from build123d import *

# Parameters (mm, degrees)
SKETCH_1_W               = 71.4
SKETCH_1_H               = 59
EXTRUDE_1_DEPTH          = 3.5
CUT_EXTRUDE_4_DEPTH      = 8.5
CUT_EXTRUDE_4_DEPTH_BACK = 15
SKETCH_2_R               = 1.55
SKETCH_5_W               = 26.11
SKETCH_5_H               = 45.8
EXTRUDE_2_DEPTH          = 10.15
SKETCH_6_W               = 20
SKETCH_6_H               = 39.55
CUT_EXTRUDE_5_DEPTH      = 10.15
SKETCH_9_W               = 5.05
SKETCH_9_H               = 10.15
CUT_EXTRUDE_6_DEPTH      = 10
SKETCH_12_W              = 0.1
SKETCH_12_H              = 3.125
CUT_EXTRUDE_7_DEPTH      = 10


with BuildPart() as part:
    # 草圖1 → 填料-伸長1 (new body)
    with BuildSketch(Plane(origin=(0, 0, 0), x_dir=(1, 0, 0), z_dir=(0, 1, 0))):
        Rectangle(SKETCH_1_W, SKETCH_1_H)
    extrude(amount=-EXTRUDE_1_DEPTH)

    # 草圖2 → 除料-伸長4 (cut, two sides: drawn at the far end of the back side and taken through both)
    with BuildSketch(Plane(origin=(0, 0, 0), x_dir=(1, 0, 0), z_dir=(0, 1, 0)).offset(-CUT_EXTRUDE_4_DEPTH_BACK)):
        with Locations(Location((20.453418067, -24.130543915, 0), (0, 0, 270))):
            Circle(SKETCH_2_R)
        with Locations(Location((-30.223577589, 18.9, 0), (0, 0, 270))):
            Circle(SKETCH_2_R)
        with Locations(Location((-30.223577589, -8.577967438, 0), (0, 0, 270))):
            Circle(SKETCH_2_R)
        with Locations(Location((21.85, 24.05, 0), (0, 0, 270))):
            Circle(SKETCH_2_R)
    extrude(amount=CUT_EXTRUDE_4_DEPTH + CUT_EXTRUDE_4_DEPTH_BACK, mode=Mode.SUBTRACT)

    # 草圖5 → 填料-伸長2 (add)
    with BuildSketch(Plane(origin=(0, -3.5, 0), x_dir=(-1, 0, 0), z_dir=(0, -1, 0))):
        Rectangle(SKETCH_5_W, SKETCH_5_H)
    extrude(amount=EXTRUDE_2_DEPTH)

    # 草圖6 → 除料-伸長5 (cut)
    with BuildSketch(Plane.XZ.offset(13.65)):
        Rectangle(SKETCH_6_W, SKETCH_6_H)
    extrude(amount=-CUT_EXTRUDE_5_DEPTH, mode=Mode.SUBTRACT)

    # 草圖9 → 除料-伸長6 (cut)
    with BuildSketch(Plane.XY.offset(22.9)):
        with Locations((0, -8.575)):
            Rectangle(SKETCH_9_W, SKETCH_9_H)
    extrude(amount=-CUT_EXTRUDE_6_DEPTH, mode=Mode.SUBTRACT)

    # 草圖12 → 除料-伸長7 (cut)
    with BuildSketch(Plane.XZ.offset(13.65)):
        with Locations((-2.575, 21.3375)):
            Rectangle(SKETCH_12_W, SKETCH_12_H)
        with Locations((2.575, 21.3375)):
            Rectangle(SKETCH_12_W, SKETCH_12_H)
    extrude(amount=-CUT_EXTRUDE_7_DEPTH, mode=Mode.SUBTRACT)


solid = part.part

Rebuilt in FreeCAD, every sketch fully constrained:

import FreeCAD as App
import Part
import Sketcher


def add_polygon(sketch, points):
    """Adds a closed chain of lines whose ends are joined by coincident constraints."""
    first, n = sketch.GeometryCount, len(points)
    for a, b in zip(points, points[1:] + points[:1]):
        sketch.addGeometry(Part.LineSegment(App.Vector(*a, 0), App.Vector(*b, 0)), False)
    for i in range(n):
        sketch.addConstraint(Sketcher.Constraint("Coincident", first + i, 2, first + (i + 1) % n, 1))

doc = App.newDocument("Part")
params = doc.addObject("Spreadsheet::Sheet", "Params")
for row, (alias, value) in enumerate([
    ("sketch1_height", "59 mm"),
    ("sketch1_width", "71.4 mm"),
    ("pad1_length", "3.5 mm"),
    ("sketch2_diameter", "3.1 mm"),
    ("sketch3_height", "45.8 mm"),
    ("sketch3_width", "26.11 mm"),
    ("pad2_length", "10.15 mm"),
    ("sketch4_width", "20 mm"),
    ("sketch4_height", "39.55 mm"),
    ("pocket2_length", "10.15 mm"),
    ("sketch5_width", "5.05 mm"),
    ("sketch5_height", "10.15 mm"),
    ("pocket3_length", "10 mm"),
    ("sketch6_width", "0.1 mm"),
    ("pocket4_length", "10 mm"),
], start=1):
    params.set(f"A{row}", alias)
    params.set(f"B{row}", "=" + value)
    params.setAlias(f"B{row}", alias)

body = doc.addObject("PartDesign::Body", "Body")

sketch1 = doc.addObject("Sketcher::SketchObject", "Sketch")
body.addObject(sketch1)
sketch1.AttachmentSupport = (doc.XZ_Plane, [""])
sketch1.MapMode = "FlatFace"
add_polygon(sketch1, [(-36, -30), (-36, 30), (36, 30), (36, -30)])
sketch1.addConstraint(Sketcher.Constraint("Vertical", 0))
sketch1.addConstraint(Sketcher.Constraint("Horizontal", 1))
sketch1.addConstraint(Sketcher.Constraint("Vertical", 2))
sketch1.addConstraint(Sketcher.Constraint("Horizontal", 3))
sketch1.addConstraint(Sketcher.Constraint("Symmetric", 0, 2, 2, 2, -1, 1))
sketch1.addConstraint(Sketcher.Constraint("DistanceY", 0, 1, 0, 2, 59.0))
sketch1.addConstraint(Sketcher.Constraint("DistanceX", 1, 1, 1, 2, 71.4))
sketch1.setExpression("Constraints[9]", "Params.sketch1_height")
sketch1.setExpression("Constraints[10]", "Params.sketch1_width")
pad1 = doc.addObject("PartDesign::Pad", "Pad")
body.addObject(pad1)
pad1.Profile = sketch1
pad1.setExpression("Length", "Params.pad1_length")

sketch2 = doc.addObject("Sketcher::SketchObject", "Sketch001")
body.addObject(sketch2)
sketch2.AttachmentSupport = (doc.XZ_Plane, [""])
sketch2.MapMode = "FlatFace"
sketch2.addGeometry(Part.Circle(App.Vector(20.5, 24.1, 0), App.Vector(0, 0, 1), 1.6), False)
sketch2.addGeometry(Part.Circle(App.Vector(-30.2, -18.9, 0), App.Vector(0, 0, 1), 1.6), False)
sketch2.addGeometry(Part.Circle(App.Vector(-30.2, 8.6, 0), App.Vector(0, 0, 1), 1.6), False)
sketch2.addGeometry(Part.Circle(App.Vector(21.9, -24.1, 0), App.Vector(0, 0, 1), 1.6), False)
sketch2.addConstraint(Sketcher.Constraint("Equal", 0, 1))
sketch2.addConstraint(Sketcher.Constraint("Equal", 1, 2))
sketch2.addConstraint(Sketcher.Constraint("Equal", 2, 3))
sketch2.addConstraint(Sketcher.Constraint("Vertical", 1, 3, 2, 3))
sketch2.addConstraint(Sketcher.Constraint("Diameter", 0, 3.1))
sketch2.addConstraint(Sketcher.Constraint("DistanceY", 1, 3, -1, 1, 18.9))
sketch2.addConstraint(Sketcher.Constraint("DistanceX", -1, 1, 3, 3, 21.85))
sketch2.addConstraint(Sketcher.Constraint("DistanceY", 3, 3, -1, 1, 24.05))
sketch2.addConstraint(Sketcher.Constraint("DistanceX", -1, 1, 0, 3, 20.453418))
sketch2.addConstraint(Sketcher.Constraint("DistanceY", -1, 1, 0, 3, 24.130544))
sketch2.addConstraint(Sketcher.Constraint("DistanceX", 1, 3, -1, 1, 30.223578))
sketch2.addConstraint(Sketcher.Constraint("DistanceY", -1, 1, 2, 3, 8.577967))
sketch2.setExpression("Constraints[4]", "Params.sketch2_diameter")
pocket1 = doc.addObject("PartDesign::Pocket", "Pocket")
body.addObject(pocket1)
pocket1.Profile = sketch2
pocket1.Type = "ThroughAll"
pocket1.Midplane = True

sketch3 = doc.addObject("Sketcher::SketchObject", "Sketch002")
body.addObject(sketch3)
sketch3.AttachmentSupport = (doc.XZ_Plane, [""])
sketch3.MapMode = "FlatFace"
sketch3.AttachmentOffset = App.Placement(App.Vector(0, 0, 3.5), App.Rotation())
add_polygon(sketch3, [(13, -23), (13, 23), (-13, 23), (-13, -23)])
sketch3.addConstraint(Sketcher.Constraint("Vertical", 0))
sketch3.addConstraint(Sketcher.Constraint("Horizontal", 1))
sketch3.addConstraint(Sketcher.Constraint("Vertical", 2))
sketch3.addConstraint(Sketcher.Constraint("Horizontal", 3))
sketch3.addConstraint(Sketcher.Constraint("Symmetric", 0, 2, 2, 2, -1, 1))
sketch3.addConstraint(Sketcher.Constraint("DistanceY", 0, 1, 0, 2, 45.8))
sketch3.addConstraint(Sketcher.Constraint("DistanceX", 1, 2, 1, 1, 26.11))
sketch3.setExpression("Constraints[9]", "Params.sketch3_height")
sketch3.setExpression("Constraints[10]", "Params.sketch3_width")
pad2 = doc.addObject("PartDesign::Pad", "Pad001")
body.addObject(pad2)
pad2.Profile = sketch3
pad2.setExpression("Length", "Params.pad2_length")

sketch4 = doc.addObject("Sketcher::SketchObject", "Sketch003")
body.addObject(sketch4)
sketch4.AttachmentSupport = (doc.XZ_Plane, [""])
sketch4.MapMode = "FlatFace"
sketch4.AttachmentOffset = App.Placement(App.Vector(0, 0, 13.65), App.Rotation())
add_polygon(sketch4, [(-10, 20), (-10, -20), (10, -20), (10, 20)])
sketch4.addConstraint(Sketcher.Constraint("Vertical", 0))
sketch4.addConstraint(Sketcher.Constraint("Horizontal", 1))
sketch4.addConstraint(Sketcher.Constraint("Vertical", 2))
sketch4.addConstraint(Sketcher.Constraint("Horizontal", 3))
sketch4.addConstraint(Sketcher.Constraint("Symmetric", 0, 2, 2, 2, -1, 1))
sketch4.addConstraint(Sketcher.Constraint("DistanceX", 1, 1, 1, 2, 20.0))
sketch4.addConstraint(Sketcher.Constraint("DistanceY", 0, 2, 0, 1, 39.55))
sketch4.setExpression("Constraints[9]", "Params.sketch4_width")
sketch4.setExpression("Constraints[10]", "Params.sketch4_height")
pocket2 = doc.addObject("PartDesign::Pocket", "Pocket001")
body.addObject(pocket2)
pocket2.Profile = sketch4
pocket2.setExpression("Length", "Params.pocket2_length")

sketch5 = doc.addObject("Sketcher::SketchObject", "Sketch004")
body.addObject(sketch5)
sketch5.AttachmentSupport = (doc.XY_Plane, [""])
sketch5.MapMode = "FlatFace"
sketch5.AttachmentOffset = App.Placement(App.Vector(0, 0, 22.9), App.Rotation())
add_polygon(sketch5, [(-3, -4), (-3, -14), (3, -14), (3, -4)])
sketch5.addConstraint(Sketcher.Constraint("Vertical", 0))
sketch5.addConstraint(Sketcher.Constraint("Horizontal", 1))
sketch5.addConstraint(Sketcher.Constraint("Vertical", 2))
sketch5.addConstraint(Sketcher.Constraint("Horizontal", 3))
sketch5.addConstraint(Sketcher.Constraint("DistanceX", 1, 1, 1, 2, 5.05))
sketch5.addConstraint(Sketcher.Constraint("DistanceY", 0, 2, 0, 1, 10.15))
sketch5.addConstraint(Sketcher.Constraint("DistanceY", 2, 2, -1, 1, 3.5))
sketch5.addConstraint(Sketcher.Constraint("DistanceX", 0, 2, -1, 1, 2.525))
sketch5.setExpression("Constraints[8]", "Params.sketch5_width")
sketch5.setExpression("Constraints[9]", "Params.sketch5_height")
pocket3 = doc.addObject("PartDesign::Pocket", "Pocket002")
body.addObject(pocket3)
pocket3.Profile = sketch5
pocket3.setExpression("Length", "Params.pocket3_length")

sketch6 = doc.addObject("Sketcher::SketchObject", "Sketch005")
body.addObject(sketch6)
sketch6.AttachmentSupport = (doc.XZ_Plane, [""])
sketch6.MapMode = "FlatFace"
sketch6.AttachmentOffset = App.Placement(App.Vector(0, 0, 13.65), App.Rotation())
add_polygon(sketch6, [(-2.62, 22.9), (-2.62, 19.77), (-2.52, 19.77), (-2.52, 22.9)])
add_polygon(sketch6, [(2.52, 22.9), (2.52, 19.77), (2.62, 19.77), (2.62, 22.9)])
sketch6.addConstraint(Sketcher.Constraint("Vertical", 0))
sketch6.addConstraint(Sketcher.Constraint("Horizontal", 1))
sketch6.addConstraint(Sketcher.Constraint("Vertical", 2))
sketch6.addConstraint(Sketcher.Constraint("Horizontal", 3))
sketch6.addConstraint(Sketcher.Constraint("Vertical", 4))
sketch6.addConstraint(Sketcher.Constraint("Horizontal", 5))
sketch6.addConstraint(Sketcher.Constraint("Vertical", 6))
sketch6.addConstraint(Sketcher.Constraint("Horizontal", 7))
sketch6.addConstraint(Sketcher.Constraint("Symmetric", 1, 2, 4, 2, -2))
sketch6.addConstraint(Sketcher.Constraint("Symmetric", 3, 2, 6, 2, -2))
sketch6.addConstraint(Sketcher.Constraint("DistanceX", 1, 1, 1, 2, 0.1))
sketch6.addConstraint(Sketcher.Constraint("DistanceY", -1, 1, 2, 2, 22.9))
sketch6.addConstraint(Sketcher.Constraint("DistanceY", 0, 2, 0, 1, 3.125))
sketch6.addConstraint(Sketcher.Constraint("DistanceX", 1, 2, 4, 2, 5.05))
sketch6.setExpression("Constraints[18]", "Params.sketch6_width")
pocket4 = doc.addObject("PartDesign::Pocket", "Pocket003")
body.addObject(pocket4)
pocket4.Profile = sketch6
pocket4.setExpression("Length", "Params.pocket4_length")

doc.recompute()
